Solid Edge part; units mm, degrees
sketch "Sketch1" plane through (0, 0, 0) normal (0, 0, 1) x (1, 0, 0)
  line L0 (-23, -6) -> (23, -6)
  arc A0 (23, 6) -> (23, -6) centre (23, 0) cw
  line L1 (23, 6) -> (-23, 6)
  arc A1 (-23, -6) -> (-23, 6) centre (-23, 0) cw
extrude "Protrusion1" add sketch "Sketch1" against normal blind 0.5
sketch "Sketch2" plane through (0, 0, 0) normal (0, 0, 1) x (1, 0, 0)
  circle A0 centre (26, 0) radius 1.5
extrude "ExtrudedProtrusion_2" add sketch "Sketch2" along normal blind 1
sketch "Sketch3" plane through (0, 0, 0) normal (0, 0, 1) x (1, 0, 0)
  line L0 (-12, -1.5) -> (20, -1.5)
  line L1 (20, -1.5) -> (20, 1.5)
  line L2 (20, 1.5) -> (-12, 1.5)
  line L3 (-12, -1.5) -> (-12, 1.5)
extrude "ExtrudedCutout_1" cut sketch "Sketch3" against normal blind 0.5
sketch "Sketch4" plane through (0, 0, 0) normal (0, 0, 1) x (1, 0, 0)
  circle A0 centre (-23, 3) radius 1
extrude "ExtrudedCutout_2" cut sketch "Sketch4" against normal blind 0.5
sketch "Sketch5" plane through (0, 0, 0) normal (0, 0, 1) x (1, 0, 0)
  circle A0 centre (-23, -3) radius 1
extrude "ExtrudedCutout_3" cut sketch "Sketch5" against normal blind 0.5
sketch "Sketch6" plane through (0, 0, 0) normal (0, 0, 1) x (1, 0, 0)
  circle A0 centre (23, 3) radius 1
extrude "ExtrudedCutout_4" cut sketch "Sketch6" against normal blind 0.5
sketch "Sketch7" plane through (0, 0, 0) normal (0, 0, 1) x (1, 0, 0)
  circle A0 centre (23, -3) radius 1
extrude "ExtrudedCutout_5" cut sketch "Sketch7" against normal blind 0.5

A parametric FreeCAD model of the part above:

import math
import FreeCAD as App
import Part
import Sketcher

V = App.Vector

doc = App.newDocument("Part")
body = doc.addObject("PartDesign::Body", "Body")

# Sketch on XY plane
sketch1 = body.newObject("Sketcher::SketchObject", "Sketch")
sketch1.AttachmentSupport = (doc.getObject("XY_Plane"), [""])
sketch1.MapMode = "FlatFace"
sketch1.addGeometry(Part.ArcOfCircle(Part.Circle(V(-23, 0, 0), V(0, 0, 1), 6), math.radians(90), math.radians(270)), False)
sketch1.addGeometry(Part.LineSegment(V(-23, -6, 0), V(23, -6, 0)), False)
sketch1.addGeometry(Part.ArcOfCircle(Part.Circle(V(23, 0, 0), V(0, 0, 1), 6), math.radians(-90), math.radians(90)), False)
sketch1.addGeometry(Part.LineSegment(V(23, 6, 0), V(-23, 6, 0)), False)
sketch1.addConstraint(Sketcher.Constraint("Tangent", 0, 2, 1, 1))
sketch1.addConstraint(Sketcher.Constraint("Tangent", 1, 2, 2, 1))
sketch1.addConstraint(Sketcher.Constraint("Tangent", 2, 2, 3, 1))
sketch1.addConstraint(Sketcher.Constraint("Tangent", 3, 2, 0, 1))
sketch1.addConstraint(Sketcher.Constraint("Horizontal", 1))
sketch1.addConstraint(Sketcher.Constraint("Horizontal", 3))
sketch1.addConstraint(Sketcher.Constraint("Symmetric", 0, 3, 2, 3, -1, 1))
sketch1.addConstraint(Sketcher.Constraint("Radius", 0, 6.0))
sketch1.addConstraint(Sketcher.Constraint("DistanceX", 1, 1, 1, 2, 46.0))
pad1 = body.newObject("PartDesign::Pad", "Pad")
pad1.Profile = sketch1
pad1.Length = 0.5
pad1.Reversed = True

# Sketch on XY plane
sketch2 = body.newObject("Sketcher::SketchObject", "Sketch001")
sketch2.AttachmentSupport = (doc.getObject("XY_Plane"), [""])
sketch2.MapMode = "FlatFace"
sketch2.addGeometry(Part.Circle(V(26, 0, 0), V(0, 0, 1), 1.5), False)
sketch2.addConstraint(Sketcher.Constraint("PointOnObject", 0, 3, -1))
sketch2.addConstraint(Sketcher.Constraint("Diameter", 0, 3.0))
sketch2.addConstraint(Sketcher.Constraint("DistanceX", -1, 1, 0, 3, 26.0))
pad2 = body.newObject("PartDesign::Pad", "Pad001")
pad2.Profile = sketch2
pad2.Length = 1

# Sketch on XY plane
sketch3 = body.newObject("Sketcher::SketchObject", "Sketch002")
sketch3.AttachmentSupport = (doc.getObject("XY_Plane"), [""])
sketch3.MapMode = "FlatFace"
sketch3.addGeometry(Part.LineSegment(V(-12, 1.5, 0), V(-12, -1.5, 0)), False)
sketch3.addGeometry(Part.LineSegment(V(-12, -1.5, 0), V(20, -1.5, 0)), False)
sketch3.addGeometry(Part.LineSegment(V(20, -1.5, 0), V(20, 1.5, 0)), False)
sketch3.addGeometry(Part.LineSegment(V(20, 1.5, 0), V(-12, 1.5, 0)), False)
sketch3.addConstraint(Sketcher.Constraint("Coincident", 0, 2, 1, 1))
sketch3.addConstraint(Sketcher.Constraint("Coincident", 1, 2, 2, 1))
sketch3.addConstraint(Sketcher.Constraint("Coincident", 2, 2, 3, 1))
sketch3.addConstraint(Sketcher.Constraint("Coincident", 3, 2, 0, 1))
sketch3.addConstraint(Sketcher.Constraint("Vertical", 0))
sketch3.addConstraint(Sketcher.Constraint("Horizontal", 1))
sketch3.addConstraint(Sketcher.Constraint("Vertical", 2))
sketch3.addConstraint(Sketcher.Constraint("Horizontal", 3))
sketch3.addConstraint(Sketcher.Constraint("DistanceX", 1, 1, 1, 2, 32.0))
sketch3.addConstraint(Sketcher.Constraint("DistanceY", 0, 2, 0, 1, 3.0))
sketch3.addConstraint(Sketcher.Constraint("DistanceX", 0, 2, -1, 1, 12.0))
sketch3.addConstraint(Sketcher.Constraint("DistanceY", 0, 2, -1, 1, 1.5))
pocket1 = body.newObject("PartDesign::Pocket", "Pocket")
pocket1.Profile = sketch3
pocket1.Length = 0.5

# Sketch on XY plane
sketch4 = body.newObject("Sketcher::SketchObject", "Sketch003")
sketch4.AttachmentSupport = (doc.getObject("XY_Plane"), [""])
sketch4.MapMode = "FlatFace"
sketch4.addGeometry(Part.Circle(V(-23, 3, 0), V(0, 0, 1), 1), False)
sketch4.addConstraint(Sketcher.Constraint("Diameter", 0, 2.0))
sketch4.addConstraint(Sketcher.Constraint("DistanceX", 0, 3, -1, 1, 23.0))
sketch4.addConstraint(Sketcher.Constraint("DistanceY", -1, 1, 0, 3, 3.0))
pocket2 = body.newObject("PartDesign::Pocket", "Pocket001")
pocket2.Profile = sketch4
pocket2.Length = 0.5

# Sketch on XY plane
sketch5 = body.newObject("Sketcher::SketchObject", "Sketch004")
sketch5.AttachmentSupport = (doc.getObject("XY_Plane"), [""])
sketch5.MapMode = "FlatFace"
sketch5.addGeometry(Part.Circle(V(-23, -3, 0), V(0, 0, 1), 1), False)
sketch5.addConstraint(Sketcher.Constraint("Diameter", 0, 2.0))
sketch5.addConstraint(Sketcher.Constraint("DistanceX", 0, 3, -1, 1, 23.0))
sketch5.addConstraint(Sketcher.Constraint("DistanceY", 0, 3, -1, 1, 3.0))
pocket3 = body.newObject("PartDesign::Pocket", "Pocket002")
pocket3.Profile = sketch5
pocket3.Length = 0.5

# Sketch on XY plane
sketch6 = body.newObject("Sketcher::SketchObject", "Sketch005")
sketch6.AttachmentSupport = (doc.getObject("XY_Plane"), [""])
sketch6.MapMode = "FlatFace"
sketch6.addGeometry(Part.Circle(V(23, 3, 0), V(0, 0, 1), 1), False)
sketch6.addConstraint(Sketcher.Constraint("Diameter", 0, 2.0))
sketch6.addConstraint(Sketcher.Constraint("DistanceX", -1, 1, 0, 3, 23.0))
sketch6.addConstraint(Sketcher.Constraint("DistanceY", -1, 1, 0, 3, 3.0))
pocket4 = body.newObject("PartDesign::Pocket", "Pocket003")
pocket4.Profile = sketch6
pocket4.Length = 0.5

# Sketch on XY plane
sketch7 = body.newObject("Sketcher::SketchObject", "Sketch006")
sketch7.AttachmentSupport = (doc.getObject("XY_Plane"), [""])
sketch7.MapMode = "FlatFace"
sketch7.addGeometry(Part.Circle(V(23, -3, 0), V(0, 0, 1), 1), False)
sketch7.addConstraint(Sketcher.Constraint("Diameter", 0, 2.0))
sketch7.addConstraint(Sketcher.Constraint("DistanceX", -1, 1, 0, 3, 23.0))
sketch7.addConstraint(Sketcher.Constraint("DistanceY", 0, 3, -1, 1, 3.0))
pocket5 = body.newObject("PartDesign::Pocket", "Pocket004")
pocket5.Profile = sketch7
pocket5.Length = 0.5

doc.recompute()
